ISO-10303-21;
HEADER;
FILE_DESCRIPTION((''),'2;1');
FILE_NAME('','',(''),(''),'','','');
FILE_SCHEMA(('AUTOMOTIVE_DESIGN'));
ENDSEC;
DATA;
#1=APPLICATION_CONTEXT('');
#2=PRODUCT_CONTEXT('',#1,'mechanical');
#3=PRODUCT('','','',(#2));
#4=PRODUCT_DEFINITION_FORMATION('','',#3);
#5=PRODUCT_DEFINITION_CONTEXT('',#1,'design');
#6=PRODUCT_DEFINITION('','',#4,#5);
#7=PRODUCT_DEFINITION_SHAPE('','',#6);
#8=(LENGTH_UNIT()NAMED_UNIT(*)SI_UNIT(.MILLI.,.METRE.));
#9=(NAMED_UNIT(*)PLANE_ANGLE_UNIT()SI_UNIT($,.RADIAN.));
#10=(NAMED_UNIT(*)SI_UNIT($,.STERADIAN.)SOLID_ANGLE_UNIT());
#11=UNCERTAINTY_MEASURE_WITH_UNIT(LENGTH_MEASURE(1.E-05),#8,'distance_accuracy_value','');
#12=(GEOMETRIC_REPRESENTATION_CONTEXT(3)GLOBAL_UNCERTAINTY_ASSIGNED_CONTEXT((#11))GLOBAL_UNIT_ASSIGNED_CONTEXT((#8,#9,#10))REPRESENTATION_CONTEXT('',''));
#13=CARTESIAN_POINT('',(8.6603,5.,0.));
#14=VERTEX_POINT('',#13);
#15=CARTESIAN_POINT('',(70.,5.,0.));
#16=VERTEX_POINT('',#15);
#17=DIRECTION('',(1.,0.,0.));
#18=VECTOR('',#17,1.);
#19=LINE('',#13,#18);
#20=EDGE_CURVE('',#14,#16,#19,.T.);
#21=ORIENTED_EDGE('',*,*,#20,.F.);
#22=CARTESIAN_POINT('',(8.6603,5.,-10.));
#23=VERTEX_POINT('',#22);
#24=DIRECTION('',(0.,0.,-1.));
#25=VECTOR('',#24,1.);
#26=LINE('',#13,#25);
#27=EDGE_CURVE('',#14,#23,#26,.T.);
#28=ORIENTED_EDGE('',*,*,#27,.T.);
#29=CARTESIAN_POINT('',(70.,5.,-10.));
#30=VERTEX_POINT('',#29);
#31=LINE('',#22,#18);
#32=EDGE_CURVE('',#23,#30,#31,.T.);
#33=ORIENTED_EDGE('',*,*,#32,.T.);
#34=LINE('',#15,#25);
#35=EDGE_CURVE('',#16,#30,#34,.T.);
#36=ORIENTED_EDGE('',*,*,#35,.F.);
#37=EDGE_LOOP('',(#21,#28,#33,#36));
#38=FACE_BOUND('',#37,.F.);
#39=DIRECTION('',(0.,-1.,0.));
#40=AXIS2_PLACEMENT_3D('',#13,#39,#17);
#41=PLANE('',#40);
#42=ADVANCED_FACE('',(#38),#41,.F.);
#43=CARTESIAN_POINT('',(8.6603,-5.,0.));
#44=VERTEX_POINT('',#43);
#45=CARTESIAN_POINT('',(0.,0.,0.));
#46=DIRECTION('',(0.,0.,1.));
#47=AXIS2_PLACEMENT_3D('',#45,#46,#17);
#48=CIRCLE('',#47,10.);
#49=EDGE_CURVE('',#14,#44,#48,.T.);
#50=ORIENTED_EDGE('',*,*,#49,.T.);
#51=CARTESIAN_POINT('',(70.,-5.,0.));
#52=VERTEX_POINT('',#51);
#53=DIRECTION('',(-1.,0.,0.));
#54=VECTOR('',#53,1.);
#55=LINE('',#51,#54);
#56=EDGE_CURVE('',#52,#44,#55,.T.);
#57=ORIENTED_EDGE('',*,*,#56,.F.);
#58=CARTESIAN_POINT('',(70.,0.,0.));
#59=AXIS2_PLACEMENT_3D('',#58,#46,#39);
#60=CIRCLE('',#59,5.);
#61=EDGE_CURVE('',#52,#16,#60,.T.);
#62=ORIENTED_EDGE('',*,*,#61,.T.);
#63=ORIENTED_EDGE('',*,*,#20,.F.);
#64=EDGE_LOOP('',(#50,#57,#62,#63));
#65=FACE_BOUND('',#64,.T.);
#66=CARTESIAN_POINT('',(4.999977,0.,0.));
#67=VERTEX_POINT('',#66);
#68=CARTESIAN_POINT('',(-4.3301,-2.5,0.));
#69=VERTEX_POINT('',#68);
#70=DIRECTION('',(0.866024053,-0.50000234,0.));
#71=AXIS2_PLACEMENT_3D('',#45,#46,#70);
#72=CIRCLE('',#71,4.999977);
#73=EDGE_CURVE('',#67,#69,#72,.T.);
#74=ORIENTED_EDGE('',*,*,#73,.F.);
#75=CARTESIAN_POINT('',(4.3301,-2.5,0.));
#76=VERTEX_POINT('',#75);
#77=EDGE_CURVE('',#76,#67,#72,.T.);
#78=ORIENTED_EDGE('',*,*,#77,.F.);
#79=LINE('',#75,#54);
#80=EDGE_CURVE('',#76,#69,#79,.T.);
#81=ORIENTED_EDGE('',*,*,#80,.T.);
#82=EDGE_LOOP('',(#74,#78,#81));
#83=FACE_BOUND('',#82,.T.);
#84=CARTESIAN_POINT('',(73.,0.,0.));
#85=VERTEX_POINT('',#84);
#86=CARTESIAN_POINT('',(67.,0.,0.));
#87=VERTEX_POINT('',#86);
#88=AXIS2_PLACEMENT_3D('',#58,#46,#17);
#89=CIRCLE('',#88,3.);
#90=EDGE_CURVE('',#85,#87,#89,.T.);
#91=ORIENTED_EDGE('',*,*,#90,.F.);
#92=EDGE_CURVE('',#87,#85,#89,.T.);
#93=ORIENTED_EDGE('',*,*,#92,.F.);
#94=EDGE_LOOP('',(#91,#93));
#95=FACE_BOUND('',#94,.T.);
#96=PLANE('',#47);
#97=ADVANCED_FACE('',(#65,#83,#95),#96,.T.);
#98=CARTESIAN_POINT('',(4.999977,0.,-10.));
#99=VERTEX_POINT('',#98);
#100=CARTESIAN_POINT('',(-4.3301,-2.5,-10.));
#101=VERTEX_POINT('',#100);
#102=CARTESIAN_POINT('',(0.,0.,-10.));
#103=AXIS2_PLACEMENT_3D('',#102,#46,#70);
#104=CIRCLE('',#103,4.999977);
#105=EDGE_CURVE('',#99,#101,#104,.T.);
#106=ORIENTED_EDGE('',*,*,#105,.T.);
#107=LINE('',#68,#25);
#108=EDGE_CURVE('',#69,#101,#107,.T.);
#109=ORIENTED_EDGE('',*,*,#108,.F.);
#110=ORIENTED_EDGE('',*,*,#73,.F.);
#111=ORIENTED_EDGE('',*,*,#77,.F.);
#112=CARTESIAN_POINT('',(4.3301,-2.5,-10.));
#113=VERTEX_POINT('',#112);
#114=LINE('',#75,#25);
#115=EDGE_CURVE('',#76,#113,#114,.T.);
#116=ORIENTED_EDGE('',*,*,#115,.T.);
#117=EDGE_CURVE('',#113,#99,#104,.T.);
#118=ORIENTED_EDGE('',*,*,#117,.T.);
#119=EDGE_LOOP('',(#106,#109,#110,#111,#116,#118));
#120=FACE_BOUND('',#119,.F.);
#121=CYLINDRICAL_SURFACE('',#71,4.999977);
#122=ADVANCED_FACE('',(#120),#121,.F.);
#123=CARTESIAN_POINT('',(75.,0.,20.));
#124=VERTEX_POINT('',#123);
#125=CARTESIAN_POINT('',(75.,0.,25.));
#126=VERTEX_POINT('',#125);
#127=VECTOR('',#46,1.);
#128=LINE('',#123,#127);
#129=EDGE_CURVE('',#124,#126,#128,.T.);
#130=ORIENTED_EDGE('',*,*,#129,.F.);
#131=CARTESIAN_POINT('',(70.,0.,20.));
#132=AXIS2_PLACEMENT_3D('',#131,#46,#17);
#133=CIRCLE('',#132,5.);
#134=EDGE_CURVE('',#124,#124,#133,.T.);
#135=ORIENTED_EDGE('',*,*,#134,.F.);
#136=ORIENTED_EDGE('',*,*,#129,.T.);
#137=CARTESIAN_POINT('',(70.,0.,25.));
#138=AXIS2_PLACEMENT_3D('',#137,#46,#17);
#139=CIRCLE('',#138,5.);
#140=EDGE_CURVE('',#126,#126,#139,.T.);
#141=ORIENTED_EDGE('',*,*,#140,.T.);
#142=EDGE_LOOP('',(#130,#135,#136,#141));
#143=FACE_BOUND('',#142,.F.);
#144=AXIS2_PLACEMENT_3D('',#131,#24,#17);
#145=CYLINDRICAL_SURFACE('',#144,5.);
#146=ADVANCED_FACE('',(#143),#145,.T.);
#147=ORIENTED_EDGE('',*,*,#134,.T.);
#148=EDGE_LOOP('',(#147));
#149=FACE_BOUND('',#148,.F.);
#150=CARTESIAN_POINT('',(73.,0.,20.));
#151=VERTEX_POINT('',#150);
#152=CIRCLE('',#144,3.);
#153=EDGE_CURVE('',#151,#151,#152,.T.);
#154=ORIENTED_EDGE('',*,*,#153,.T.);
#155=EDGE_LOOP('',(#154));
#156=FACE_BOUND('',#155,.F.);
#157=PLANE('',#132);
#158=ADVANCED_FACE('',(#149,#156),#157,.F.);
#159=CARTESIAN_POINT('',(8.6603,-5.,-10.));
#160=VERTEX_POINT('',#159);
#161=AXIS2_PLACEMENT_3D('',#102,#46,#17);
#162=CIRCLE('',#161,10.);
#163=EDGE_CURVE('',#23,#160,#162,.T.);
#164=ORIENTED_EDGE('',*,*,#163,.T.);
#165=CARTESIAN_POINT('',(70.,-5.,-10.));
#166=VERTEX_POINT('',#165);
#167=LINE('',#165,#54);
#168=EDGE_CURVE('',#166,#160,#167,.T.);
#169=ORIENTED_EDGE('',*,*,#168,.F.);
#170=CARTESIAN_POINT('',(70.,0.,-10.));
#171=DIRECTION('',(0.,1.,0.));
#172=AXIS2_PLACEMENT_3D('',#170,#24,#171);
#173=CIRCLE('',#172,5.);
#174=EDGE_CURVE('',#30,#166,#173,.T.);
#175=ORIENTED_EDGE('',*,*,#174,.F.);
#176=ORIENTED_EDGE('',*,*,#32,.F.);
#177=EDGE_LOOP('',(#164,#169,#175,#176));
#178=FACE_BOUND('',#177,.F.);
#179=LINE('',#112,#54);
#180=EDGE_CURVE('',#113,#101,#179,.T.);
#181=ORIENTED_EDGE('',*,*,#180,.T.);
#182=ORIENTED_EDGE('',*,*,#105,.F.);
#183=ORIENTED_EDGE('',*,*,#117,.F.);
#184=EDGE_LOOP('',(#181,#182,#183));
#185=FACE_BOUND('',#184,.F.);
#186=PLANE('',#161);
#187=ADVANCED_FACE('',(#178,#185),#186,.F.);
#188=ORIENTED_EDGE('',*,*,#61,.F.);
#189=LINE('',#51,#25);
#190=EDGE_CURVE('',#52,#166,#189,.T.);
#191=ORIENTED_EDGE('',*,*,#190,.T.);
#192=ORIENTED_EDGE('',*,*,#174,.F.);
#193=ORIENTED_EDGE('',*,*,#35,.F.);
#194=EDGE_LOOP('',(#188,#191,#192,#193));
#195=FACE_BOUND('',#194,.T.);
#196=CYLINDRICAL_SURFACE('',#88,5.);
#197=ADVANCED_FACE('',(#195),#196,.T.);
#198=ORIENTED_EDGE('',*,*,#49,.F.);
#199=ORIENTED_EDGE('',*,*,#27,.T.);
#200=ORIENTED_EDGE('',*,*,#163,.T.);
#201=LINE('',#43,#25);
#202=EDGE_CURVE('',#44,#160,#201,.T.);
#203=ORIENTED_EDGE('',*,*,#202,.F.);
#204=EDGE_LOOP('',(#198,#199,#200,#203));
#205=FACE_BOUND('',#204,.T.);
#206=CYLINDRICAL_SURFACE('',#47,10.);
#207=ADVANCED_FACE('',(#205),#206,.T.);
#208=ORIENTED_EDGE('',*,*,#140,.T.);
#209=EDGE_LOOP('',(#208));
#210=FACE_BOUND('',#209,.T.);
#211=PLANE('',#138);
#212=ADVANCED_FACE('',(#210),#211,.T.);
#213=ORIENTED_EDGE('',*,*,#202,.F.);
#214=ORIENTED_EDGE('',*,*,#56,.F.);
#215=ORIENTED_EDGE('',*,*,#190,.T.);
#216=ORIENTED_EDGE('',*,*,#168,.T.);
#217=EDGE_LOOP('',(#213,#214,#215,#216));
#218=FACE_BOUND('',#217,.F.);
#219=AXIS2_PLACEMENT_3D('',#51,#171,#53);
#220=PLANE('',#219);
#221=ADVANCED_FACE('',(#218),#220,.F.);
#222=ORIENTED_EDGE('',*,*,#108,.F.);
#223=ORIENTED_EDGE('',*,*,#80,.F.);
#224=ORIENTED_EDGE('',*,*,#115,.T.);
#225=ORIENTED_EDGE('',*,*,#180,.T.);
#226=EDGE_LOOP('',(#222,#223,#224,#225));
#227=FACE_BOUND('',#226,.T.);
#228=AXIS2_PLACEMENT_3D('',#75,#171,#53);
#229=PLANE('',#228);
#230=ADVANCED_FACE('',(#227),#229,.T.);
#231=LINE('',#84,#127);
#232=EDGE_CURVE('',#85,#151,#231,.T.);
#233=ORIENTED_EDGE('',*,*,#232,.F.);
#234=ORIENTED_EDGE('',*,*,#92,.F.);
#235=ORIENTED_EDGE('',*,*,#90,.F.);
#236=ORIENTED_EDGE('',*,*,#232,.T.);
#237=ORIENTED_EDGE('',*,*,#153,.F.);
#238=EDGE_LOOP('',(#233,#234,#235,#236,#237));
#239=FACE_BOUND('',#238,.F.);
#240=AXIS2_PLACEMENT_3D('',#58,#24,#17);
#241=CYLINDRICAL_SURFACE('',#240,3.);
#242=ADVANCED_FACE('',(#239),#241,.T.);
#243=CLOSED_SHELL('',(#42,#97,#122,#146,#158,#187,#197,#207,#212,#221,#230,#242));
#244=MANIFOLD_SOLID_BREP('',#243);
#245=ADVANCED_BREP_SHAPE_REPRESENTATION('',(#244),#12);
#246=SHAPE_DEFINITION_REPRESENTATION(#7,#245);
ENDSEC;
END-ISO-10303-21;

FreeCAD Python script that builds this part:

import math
import FreeCAD as App
import Part
import Sketcher
Q = App.Units.Quantity

doc = App.newDocument("Part")
body = doc.addObject("PartDesign::Body", "Body")

sketch1 = body.newObject("Sketcher::SketchObject", "Sketch")
sketch1.AttachmentSupport = (doc.getObject("XY_Plane"), [""])
sketch1.MapMode = "FlatFace"
sketch1.addGeometry(Part.ArcOfCircle(Part.Circle(App.Vector(0, 0, 0), App.Vector(0, 0, 1), 10), math.radians(30), math.radians(330)), False)
sketch1.addGeometry(Part.LineSegment(App.Vector(8.7, -5, 0), App.Vector(70, -5, 0)), False)
sketch1.addGeometry(Part.ArcOfCircle(Part.Circle(App.Vector(70, 0, 0), App.Vector(0, 0, 1), 5), math.radians(-90), math.radians(90)), False)
sketch1.addGeometry(Part.LineSegment(App.Vector(70, 5, 0), App.Vector(8.7, 5, 0)), False)
sketch1.addGeometry(Part.ArcOfCircle(Part.Circle(App.Vector(0, 0, 0), App.Vector(0, 0, 1), 5), math.radians(-30), math.radians(0)), False)
sketch1.addGeometry(Part.LineSegment(App.Vector(4.3, -2.5, 0), App.Vector(-4.3, -2.5, 0)), False)
sketch1.addGeometry(Part.ArcOfCircle(Part.Circle(App.Vector(0, 0, 0), App.Vector(0, 0, 1), 5), math.radians(0), math.radians(210)), False)
sketch1.addConstraint(Sketcher.Constraint("Coincident", 0, 2, 1, 1))
sketch1.addConstraint(Sketcher.Constraint("Tangent", 1, 2, 2, 1))
sketch1.addConstraint(Sketcher.Constraint("Tangent", 2, 2, 3, 1))
sketch1.addConstraint(Sketcher.Constraint("Coincident", 3, 2, 0, 1))
sketch1.addConstraint(Sketcher.Constraint("Coincident", 4, 1, 5, 1))
sketch1.addConstraint(Sketcher.Constraint("Coincident", 5, 2, 6, 2))
sketch1.addConstraint(Sketcher.Constraint("Tangent", 6, 1, 4, 2))
sketch1.addConstraint(Sketcher.Constraint("Horizontal", 1))
sketch1.addConstraint(Sketcher.Constraint("Horizontal", 3))
sketch1.addConstraint(Sketcher.Constraint("Horizontal", 5))
sketch1.addConstraint(Sketcher.Constraint("Coincident", 0, 3, -1, 1))
sketch1.addConstraint(Sketcher.Constraint("Coincident", 4, 3, -1, 1))
sketch1.addConstraint(Sketcher.Constraint("Equal", 2, 4))
sketch1.addConstraint(Sketcher.Constraint("Equal", 4, 6))
sketch1.addConstraint(Sketcher.Constraint("PointOnObject", 2, 3, -1))
sketch1.addConstraint(Sketcher.Constraint("PointOnObject", 6, 1, -1))
sketch1.addConstraint(Sketcher.Constraint("Radius", 0, Q("10 mm")))
sketch1.addConstraint(Sketcher.Constraint("Radius", 2, Q("5 mm")))
sketch1.addConstraint(Sketcher.Constraint("DistanceX", -1, 1, 2, 3, Q("70 mm")))
sketch1.addConstraint(Sketcher.Constraint("DistanceY", 4, 1, -1, 1, Q("2.5 mm")))
pad1 = body.newObject("PartDesign::Pad", "Pad")
pad1.Profile = sketch1
pad1.Length = 10
pad1.Reversed = True

sketch2 = body.newObject("Sketcher::SketchObject", "Sketch001")
sketch2.AttachmentSupport = (doc.getObject("XY_Plane"), [""])
sketch2.MapMode = "FlatFace"
sketch2.addGeometry(Part.Circle(App.Vector(70, 0, 0), App.Vector(0, 0, 1), 3), False)
sketch2.addConstraint(Sketcher.Constraint("PointOnObject", 0, 3, -1))
sketch2.addConstraint(Sketcher.Constraint("Diameter", 0, Q("6 mm")))
sketch2.addConstraint(Sketcher.Constraint("DistanceX", -1, 1, 0, 3, Q("70 mm")))
pad2 = body.newObject("PartDesign::Pad", "Pad001")
pad2.Profile = sketch2
pad2.Length = 20

sketch3 = body.newObject("Sketcher::SketchObject", "Sketch002")
sketch3.AttachmentSupport = (doc.getObject("XY_Plane"), [""])
sketch3.MapMode = "FlatFace"
sketch3.AttachmentOffset = App.Placement(App.Vector(0, 0, 20), App.Rotation())
sketch3.addGeometry(Part.Circle(App.Vector(70, 0, 0), App.Vector(0, 0, 1), 5), False)
sketch3.addConstraint(Sketcher.Constraint("PointOnObject", 0, 3, -1))
sketch3.addConstraint(Sketcher.Constraint("Diameter", 0, Q("10 mm")))
sketch3.addConstraint(Sketcher.Constraint("DistanceX", -1, 1, 0, 3, Q("70 mm")))
pad3 = body.newObject("PartDesign::Pad", "Pad002")
pad3.Profile = sketch3
pad3.Length = 5

doc.recompute()
